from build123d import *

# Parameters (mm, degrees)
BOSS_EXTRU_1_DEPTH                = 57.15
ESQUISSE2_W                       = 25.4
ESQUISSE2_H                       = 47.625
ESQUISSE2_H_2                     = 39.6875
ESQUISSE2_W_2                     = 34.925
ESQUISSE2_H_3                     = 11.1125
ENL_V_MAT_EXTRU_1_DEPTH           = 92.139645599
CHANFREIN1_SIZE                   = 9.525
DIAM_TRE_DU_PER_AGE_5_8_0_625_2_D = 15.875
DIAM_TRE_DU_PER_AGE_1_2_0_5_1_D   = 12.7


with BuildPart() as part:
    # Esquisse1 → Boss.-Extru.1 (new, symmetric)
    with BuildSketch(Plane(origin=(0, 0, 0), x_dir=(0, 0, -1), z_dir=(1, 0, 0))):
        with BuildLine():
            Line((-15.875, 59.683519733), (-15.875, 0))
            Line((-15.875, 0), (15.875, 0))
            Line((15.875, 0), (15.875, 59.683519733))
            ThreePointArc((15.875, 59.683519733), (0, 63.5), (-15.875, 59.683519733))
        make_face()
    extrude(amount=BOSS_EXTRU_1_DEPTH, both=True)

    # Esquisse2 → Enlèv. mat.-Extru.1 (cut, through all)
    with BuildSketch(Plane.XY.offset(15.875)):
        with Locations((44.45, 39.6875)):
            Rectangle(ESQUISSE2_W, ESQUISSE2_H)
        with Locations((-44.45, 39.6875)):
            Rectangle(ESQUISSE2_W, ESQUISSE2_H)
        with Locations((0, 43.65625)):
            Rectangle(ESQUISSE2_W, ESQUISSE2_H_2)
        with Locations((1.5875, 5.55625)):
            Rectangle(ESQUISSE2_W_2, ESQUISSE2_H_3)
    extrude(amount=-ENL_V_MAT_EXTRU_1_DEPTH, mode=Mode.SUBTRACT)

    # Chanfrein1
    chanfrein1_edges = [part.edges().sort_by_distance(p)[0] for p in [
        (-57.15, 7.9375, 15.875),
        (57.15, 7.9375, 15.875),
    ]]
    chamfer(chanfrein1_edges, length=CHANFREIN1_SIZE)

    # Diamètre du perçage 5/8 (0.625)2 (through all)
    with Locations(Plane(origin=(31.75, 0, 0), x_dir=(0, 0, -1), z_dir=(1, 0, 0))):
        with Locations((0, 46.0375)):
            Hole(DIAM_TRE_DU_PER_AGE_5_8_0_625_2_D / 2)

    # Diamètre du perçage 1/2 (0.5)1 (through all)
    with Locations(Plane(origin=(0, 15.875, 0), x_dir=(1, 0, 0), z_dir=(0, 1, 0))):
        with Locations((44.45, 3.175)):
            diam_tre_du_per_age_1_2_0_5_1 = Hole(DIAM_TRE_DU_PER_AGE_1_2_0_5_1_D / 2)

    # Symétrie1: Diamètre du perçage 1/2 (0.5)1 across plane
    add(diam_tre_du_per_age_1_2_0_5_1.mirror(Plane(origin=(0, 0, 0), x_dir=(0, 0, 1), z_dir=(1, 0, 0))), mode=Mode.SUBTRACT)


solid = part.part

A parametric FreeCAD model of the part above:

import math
import FreeCAD as App
import Part
import Sketcher
Q = App.Units.Quantity


def edges_at(feature, points):
    """Names of the edges that pass closest to the given points."""
    edges = feature.Shape.Edges
    near = lambda p: min(range(len(edges)), key=lambda i: edges[i].distToShape(Part.Vertex(*p))[0])
    return sorted({f"Edge{near(p) + 1}" for p in points})


def add_polygon(sketch, points):
    """Adds a closed chain of lines whose ends are joined by coincident constraints."""
    first, n = sketch.GeometryCount, len(points)
    for a, b in zip(points, points[1:] + points[:1]):
        sketch.addGeometry(Part.LineSegment(App.Vector(*a, 0), App.Vector(*b, 0)), False)
    for i in range(n):
        sketch.addConstraint(Sketcher.Constraint("Coincident", first + i, 2, first + (i + 1) % n, 1))

doc = App.newDocument("Part")
params = doc.addObject("Spreadsheet::Sheet", "Params")
for row, (alias, value) in enumerate([
    ("sketch1_radius", "1.375 in"),
    ("sketch1_height", "1.25 in"),
    ("pad1_length", "4.5 in"),
    ("sketch2_width", "1 in"),
    ("sketch2_width2", "1.375 in"),
    ("sketch2_height", "1.875 in"),
    ("sketch2_height2", "1.5625 in"),
    ("chamfer_size", "0.375 in"),
    ("sketch3_diameter", "0.625 in"),
    ("hole_diameter", "0.625 in"),
    ("sketch4_diameter", "0.5 in"),
    ("hole2_diameter", "0.5 in"),
], start=1):
    params.set(f"A{row}", alias)
    params.set(f"B{row}", "=" + value)
    params.setAlias(f"B{row}", alias)

body = doc.addObject("PartDesign::Body", "Body")

sketch1 = body.newObject("Sketcher::SketchObject", "Sketch")
sketch1.AttachmentSupport = (doc.getObject("YZ_Plane"), [""])
sketch1.MapMode = "FlatFace"
sketch1.addGeometry([
    Part.LineSegment(App.Vector(59.68352, 15.875, 0), App.Vector(0, 15.875, 0)),
    Part.LineSegment(App.Vector(0, 15.875, 0), App.Vector(0, -15.875, 0)),
    Part.LineSegment(App.Vector(0, -15.875, 0), App.Vector(59.68352, -15.875, 0)),
    Part.ArcOfCircle(Part.Circle(App.Vector(28.575, 0, 0), App.Vector(0, 0, 1), 34.925), math.radians(-27.035692), math.radians(27.035692)),
], False)
sketch1.addConstraint([
    Sketcher.Constraint("Coincident", 0, 2, 1, 1),
    Sketcher.Constraint("Coincident", 1, 2, 2, 1),
    Sketcher.Constraint("Coincident", 2, 2, 3, 1),
    Sketcher.Constraint("Coincident", 3, 2, 0, 1),
    Sketcher.Constraint("Horizontal", 0),
    Sketcher.Constraint("Vertical", 1),
    Sketcher.Constraint("Horizontal", 2),
    Sketcher.Constraint("Symmetric", 0, 2, 1, 2, -1, 1),
    Sketcher.Constraint("PointOnObject", 3, 3, -1),
    Sketcher.Constraint("Radius", 3, Q("1.375 in")),
    Sketcher.Constraint("DistanceY", 1, 2, 1, 1, Q("1.25 in")),
    Sketcher.Constraint("DistanceX", -1, 1, 3, 3, Q("1.125 in")),
])
sketch1.setExpression("Constraints[9]", "Params.sketch1_radius")
sketch1.setExpression("Constraints[10]", "Params.sketch1_height")
pad1 = body.newObject("PartDesign::Pad", "Pad")
pad1.Profile = sketch1
pad1.setExpression("Length", "Params.pad1_length")
pad1.Midplane = True

sketch2 = body.newObject("Sketcher::SketchObject", "Sketch001")
sketch2.AttachmentSupport = (doc.getObject("XY_Plane"), [""])
sketch2.MapMode = "FlatFace"
sketch2.AttachmentOffset = App.Placement(App.Vector(0, 0, 0.625 * 25.4), App.Rotation())
add_polygon(sketch2, [(31.75, 63.5), (31.75, 15.875), (57.15, 15.875), (57.15, 63.5)])
add_polygon(sketch2, [(-57.15, 63.5), (-57.15, 15.875), (-31.75, 15.875), (-31.75, 63.5)])
add_polygon(sketch2, [(-12.7, 63.5), (-12.7, 23.8125), (12.7, 23.8125), (12.7, 63.5)])
add_polygon(sketch2, [(-15.875, 11.1125), (-15.875, 0), (19.05, 0), (19.05, 11.1125)])
sketch2.addConstraint([
    Sketcher.Constraint("Vertical", 0),
    Sketcher.Constraint("Horizontal", 1),
    Sketcher.Constraint("Vertical", 2),
    Sketcher.Constraint("Horizontal", 3),
    Sketcher.Constraint("Vertical", 4),
    Sketcher.Constraint("Horizontal", 5),
    Sketcher.Constraint("Vertical", 6),
    Sketcher.Constraint("Horizontal", 7),
    Sketcher.Constraint("Vertical", 8),
    Sketcher.Constraint("Horizontal", 9),
    Sketcher.Constraint("Vertical", 10),
    Sketcher.Constraint("Horizontal", 11),
    Sketcher.Constraint("Vertical", 12),
    Sketcher.Constraint("Horizontal", 13),
    Sketcher.Constraint("Vertical", 14),
    Sketcher.Constraint("Horizontal", 15),
    Sketcher.Constraint("Symmetric", 1, 2, 4, 2, -2),
    Sketcher.Constraint("Symmetric", 3, 2, 6, 2, -2),
    Sketcher.Constraint("PointOnObject", 12, 2, -1),
    Sketcher.Constraint("Horizontal", 7, 2, 10, 2),
    Sketcher.Constraint("Equal", 7, 9),
    Sketcher.Constraint("DistanceX", 1, 1, 1, 2, Q("1 in")),
    Sketcher.Constraint("DistanceY", -1, 1, 2, 2, Q("2.5 in")),
    Sketcher.Constraint("DistanceX", 8, 2, -1, 1, Q("0.5 in")),
    Sketcher.Constraint("DistanceX", 4, 2, 0, 2, Q("3.5 in")),
    Sketcher.Constraint("DistanceX", 13, 2, 0, 2, Q("0.5 in")),
    Sketcher.Constraint("DistanceY", 14, 2, 9, 2, Q("0.5 in")),
    Sketcher.Constraint("DistanceX", 13, 1, 13, 2, Q("1.375 in")),
    Sketcher.Constraint("DistanceY", 0, 2, 0, 1, Q("1.875 in")),
    Sketcher.Constraint("DistanceY", 8, 2, 8, 1, Q("1.5625 in")),
])
sketch2.setExpression("Constraints[37]", "Params.sketch2_width")
sketch2.setExpression("Constraints[43]", "Params.sketch2_width2")
sketch2.setExpression("Constraints[44]", "Params.sketch2_height")
sketch2.setExpression("Constraints[45]", "Params.sketch2_height2")
pocket1 = body.newObject("PartDesign::Pocket", "Pocket")
pocket1.Profile = sketch2
pocket1.Type = "ThroughAll"
doc.recompute()

chamfer = body.newObject("PartDesign::Chamfer", "Chamfer")
chamfer.Base = (pocket1, edges_at(pocket1, [(-57.15, 7.938, 15.875), (57.15, 7.938, 15.875)]))
chamfer.setExpression("Size", "Params.chamfer_size")

sketch3 = body.newObject("Sketcher::SketchObject", "Sketch002")
sketch3.AttachmentSupport = (doc.getObject("YZ_Plane"), [""])
sketch3.MapMode = "FlatFace"
sketch3.AttachmentOffset = App.Placement(App.Vector(0, 0, 1.25 * 25.4), App.Rotation())
sketch3.addGeometry(Part.Circle(App.Vector(46.0375, 0, 0), App.Vector(0, 0, 1), 7.9375), False)
sketch3.addConstraint([
    Sketcher.Constraint("PointOnObject", 0, 3, -1),
    Sketcher.Constraint("Diameter", 0, Q("0.625 in")),
    Sketcher.Constraint("DistanceX", -1, 1, 0, 3, Q("1.8125 in")),
])
sketch3.setExpression("Constraints[1]", "Params.sketch3_diameter")
doc.recompute()
hole = body.newObject("PartDesign::Hole", "Hole")
hole.Profile = sketch3
hole.ThreadType = "None"
hole.setExpression("Diameter", "Params.hole_diameter")
hole.DepthType = "ThroughAll"

sketch4 = body.newObject("Sketcher::SketchObject", "Sketch003")
sketch4.AttachmentSupport = (doc.getObject("XZ_Plane"), [""])
sketch4.MapMode = "FlatFace"
sketch4.AttachmentOffset = App.Placement(App.Vector(0, 0, -0.625 * 25.4), App.Rotation())
sketch4.addGeometry(Part.Circle(App.Vector(44.45, -3.175, 0), App.Vector(0, 0, 1), 6.35), False)
sketch4.addConstraint([
    Sketcher.Constraint("Diameter", 0, Q("0.5 in")),
    Sketcher.Constraint("DistanceX", -1, 1, 0, 3, Q("1.75 in")),
    Sketcher.Constraint("DistanceY", 0, 3, -1, 1, Q("0.125 in")),
])
sketch4.setExpression("Constraints[0]", "Params.sketch4_diameter")
doc.recompute()
hole2 = body.newObject("PartDesign::Hole", "Hole001")
hole2.Profile = sketch4
hole2.ThreadType = "None"
hole2.setExpression("Diameter", "Params.hole2_diameter")
hole2.DepthType = "ThroughAll"
hole2.Reversed = True
doc.recompute()

mirrored = body.newObject("PartDesign::Mirrored", "Mirrored")
mirrored.Originals = [hole2]
mirrored.MirrorPlane = (doc.getObject("YZ_Plane"), [""])
body.Tip = mirrored

doc.recompute()
